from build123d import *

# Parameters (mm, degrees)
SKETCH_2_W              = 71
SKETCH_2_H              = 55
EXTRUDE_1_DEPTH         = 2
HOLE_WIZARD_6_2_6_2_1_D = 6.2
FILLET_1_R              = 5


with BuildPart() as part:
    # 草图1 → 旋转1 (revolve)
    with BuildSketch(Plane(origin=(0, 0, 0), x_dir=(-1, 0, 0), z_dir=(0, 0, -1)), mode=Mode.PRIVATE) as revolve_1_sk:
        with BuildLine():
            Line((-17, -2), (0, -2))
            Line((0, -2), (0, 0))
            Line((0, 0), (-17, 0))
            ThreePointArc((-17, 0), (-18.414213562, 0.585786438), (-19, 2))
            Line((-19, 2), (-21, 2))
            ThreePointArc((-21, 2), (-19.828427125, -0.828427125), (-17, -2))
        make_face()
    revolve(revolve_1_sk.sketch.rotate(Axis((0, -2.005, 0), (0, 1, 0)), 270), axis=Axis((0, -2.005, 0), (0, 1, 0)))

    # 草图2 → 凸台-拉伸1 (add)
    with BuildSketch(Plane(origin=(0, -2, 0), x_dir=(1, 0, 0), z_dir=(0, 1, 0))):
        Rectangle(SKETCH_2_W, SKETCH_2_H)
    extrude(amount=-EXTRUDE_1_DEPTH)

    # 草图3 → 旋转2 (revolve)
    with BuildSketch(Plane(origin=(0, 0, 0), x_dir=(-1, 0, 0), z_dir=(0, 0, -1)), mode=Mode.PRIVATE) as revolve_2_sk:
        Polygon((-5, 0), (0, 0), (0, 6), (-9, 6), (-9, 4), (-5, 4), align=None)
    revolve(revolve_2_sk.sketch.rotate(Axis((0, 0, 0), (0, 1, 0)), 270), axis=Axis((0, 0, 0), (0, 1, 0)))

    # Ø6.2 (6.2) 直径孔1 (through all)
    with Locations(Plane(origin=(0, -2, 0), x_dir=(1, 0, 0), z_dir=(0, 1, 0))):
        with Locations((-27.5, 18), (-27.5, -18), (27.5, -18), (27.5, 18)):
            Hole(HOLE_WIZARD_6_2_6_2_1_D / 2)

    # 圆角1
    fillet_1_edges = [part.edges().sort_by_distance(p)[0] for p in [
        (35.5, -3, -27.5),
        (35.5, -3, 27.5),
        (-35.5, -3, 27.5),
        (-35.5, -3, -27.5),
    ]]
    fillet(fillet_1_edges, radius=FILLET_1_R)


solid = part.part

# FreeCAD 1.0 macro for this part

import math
import FreeCAD as App
import Part
import Sketcher

V = App.Vector


def edges_at(feature, points):
    """Names of the edges that pass closest to the given points."""
    edges = feature.Shape.Edges
    near = lambda p: min(range(len(edges)), key=lambda i: edges[i].distToShape(Part.Vertex(*p))[0])
    return sorted({f"Edge{near(p) + 1}" for p in points})


def add_polygon(sketch, points):
    """Adds a closed chain of lines whose ends are joined by coincident constraints."""
    first, n = sketch.GeometryCount, len(points)
    for a, b in zip(points, points[1:] + points[:1]):
        sketch.addGeometry(Part.LineSegment(App.Vector(*a, 0), App.Vector(*b, 0)), False)
    for i in range(n):
        sketch.addConstraint(Sketcher.Constraint("Coincident", first + i, 2, first + (i + 1) % n, 1))

doc = App.newDocument("Part")
body = doc.addObject("PartDesign::Body", "Body")

sketch1 = doc.addObject("Sketcher::SketchObject", "Sketch")
body.addObject(sketch1)
sketch1.AttachmentSupport = (doc.XY_Plane, [""])
sketch1.MapMode = "FlatFace"
sketch1.addGeometry(Part.LineSegment(V(17, -2, 0), V(0, -2, 0)), False)
sketch1.addGeometry(Part.LineSegment(V(0, -2, 0), V(0, 0, 0)), False)
sketch1.addGeometry(Part.LineSegment(V(0, 0, 0), V(17, 0, 0)), False)
sketch1.addGeometry(Part.ArcOfCircle(Part.Circle(V(17, 2, 0), V(0, 0, 1), 2), math.radians(-90), math.radians(0)), False)
sketch1.addGeometry(Part.LineSegment(V(19, 2, 0), V(21, 2, 0)), False)
sketch1.addGeometry(Part.ArcOfCircle(Part.Circle(V(17, 2, 0), V(0, 0, 1), 4), math.radians(-90), math.radians(0)), False)
sketch1.addConstraint(Sketcher.Constraint("Coincident", 0, 2, 1, 1))
sketch1.addConstraint(Sketcher.Constraint("Coincident", 1, 2, 2, 1))
sketch1.addConstraint(Sketcher.Constraint("Tangent", 2, 2, 3, 1))
sketch1.addConstraint(Sketcher.Constraint("Coincident", 3, 2, 4, 1))
sketch1.addConstraint(Sketcher.Constraint("Coincident", 4, 2, 5, 2))
sketch1.addConstraint(Sketcher.Constraint("Tangent", 5, 1, 0, 1))
sketch1.addConstraint(Sketcher.Constraint("Horizontal", 0))
sketch1.addConstraint(Sketcher.Constraint("Vertical", 1))
sketch1.addConstraint(Sketcher.Constraint("Horizontal", 2))
sketch1.addConstraint(Sketcher.Constraint("Horizontal", 4))
sketch1.addConstraint(Sketcher.Constraint("Coincident", 1, 2, -1, 1))
sketch1.addConstraint(Sketcher.Constraint("Coincident", 5, 3, 3, 3))
sketch1.addConstraint(Sketcher.Constraint("Horizontal", 5, 3, 3, 2))
sketch1.addConstraint(Sketcher.Constraint("Radius", 3, 2.0))
sketch1.addConstraint(Sketcher.Constraint("Radius", 5, 4.0))
sketch1.addConstraint(Sketcher.Constraint("DistanceX", 0, 2, 0, 1, 17.0))
revolution = doc.addObject("PartDesign::Revolution", "Revolution")
body.addObject(revolution)
revolution.Profile = sketch1
revolution.ReferenceAxis = (sketch1, ["V_Axis"])
revolution.Angle = 360

sketch2 = doc.addObject("Sketcher::SketchObject", "Sketch001")
body.addObject(sketch2)
sketch2.AttachmentSupport = (doc.XZ_Plane, [""])
sketch2.MapMode = "FlatFace"
sketch2.AttachmentOffset = App.Placement(V(0, 0, 2), App.Rotation())
add_polygon(sketch2, [(-36, -28), (-36, 28), (36, 28), (36, -28)])
sketch2.addConstraint(Sketcher.Constraint("Vertical", 0))
sketch2.addConstraint(Sketcher.Constraint("Horizontal", 1))
sketch2.addConstraint(Sketcher.Constraint("Vertical", 2))
sketch2.addConstraint(Sketcher.Constraint("Horizontal", 3))
sketch2.addConstraint(Sketcher.Constraint("Symmetric", 0, 2, 2, 2, -1, 1))
sketch2.addConstraint(Sketcher.Constraint("DistanceX", 1, 1, 1, 2, 71.0))
sketch2.addConstraint(Sketcher.Constraint("DistanceY", 0, 1, 0, 2, 55.0))
pad1 = doc.addObject("PartDesign::Pad", "Pad")
body.addObject(pad1)
pad1.Profile = sketch2
pad1.Length = 2

sketch3 = doc.addObject("Sketcher::SketchObject", "Sketch002")
body.addObject(sketch3)
sketch3.AttachmentSupport = (doc.XY_Plane, [""])
sketch3.MapMode = "FlatFace"
add_polygon(sketch3, [(5, 0), (0, 0), (0, 6), (9, 6), (9, 4), (5, 4)])
sketch3.addConstraint(Sketcher.Constraint("Horizontal", 0))
sketch3.addConstraint(Sketcher.Constraint("Vertical", 1))
sketch3.addConstraint(Sketcher.Constraint("Horizontal", 2))
sketch3.addConstraint(Sketcher.Constraint("Vertical", 3))
sketch3.addConstraint(Sketcher.Constraint("Horizontal", 4))
sketch3.addConstraint(Sketcher.Constraint("Vertical", 5))
sketch3.addConstraint(Sketcher.Constraint("Coincident", 0, 2, -1, 1))
sketch3.addConstraint(Sketcher.Constraint("Equal", 4, 5))
sketch3.addConstraint(Sketcher.Constraint("DistanceX", 0, 2, 0, 1, 5.0))
sketch3.addConstraint(Sketcher.Constraint("DistanceX", 2, 1, 2, 2, 9.0))
sketch3.addConstraint(Sketcher.Constraint("DistanceY", 1, 1, 1, 2, 6.0))
revolution2 = doc.addObject("PartDesign::Revolution", "Revolution001")
body.addObject(revolution2)
revolution2.Profile = sketch3
revolution2.ReferenceAxis = (sketch3, ["V_Axis"])
revolution2.Angle = 360

sketch4 = doc.addObject("Sketcher::SketchObject", "Sketch003")
body.addObject(sketch4)
sketch4.AttachmentSupport = (doc.XZ_Plane, [""])
sketch4.MapMode = "FlatFace"
sketch4.AttachmentOffset = App.Placement(V(0, 0, 2), App.Rotation())
sketch4.addGeometry(Part.Circle(V(-27.5, -18, 0), V(0, 0, 1), 3.1), False)
sketch4.addGeometry(Part.Circle(V(-27.5, 18, 0), V(0, 0, 1), 3.1), False)
sketch4.addGeometry(Part.Circle(V(27.5, 18, 0), V(0, 0, 1), 3.1), False)
sketch4.addGeometry(Part.Circle(V(27.5, -18, 0), V(0, 0, 1), 3.1), False)
sketch4.addConstraint(Sketcher.Constraint("Equal", 0, 1))
sketch4.addConstraint(Sketcher.Constraint("Equal", 1, 2))
sketch4.addConstraint(Sketcher.Constraint("Equal", 2, 3))
sketch4.addConstraint(Sketcher.Constraint("Symmetric", 0, 3, 2, 3, -1, 1))
sketch4.addConstraint(Sketcher.Constraint("Symmetric", 1, 3, 3, 3, -1, 1))
sketch4.addConstraint(Sketcher.Constraint("Symmetric", 1, 3, 2, 3, -2))
sketch4.addConstraint(Sketcher.Constraint("Diameter", 0, 6.2))
sketch4.addConstraint(Sketcher.Constraint("DistanceY", 0, 3, -1, 1, 18.0))
sketch4.addConstraint(Sketcher.Constraint("DistanceX", 1, 3, 2, 3, 55.0))
doc.recompute()
hole = doc.addObject("PartDesign::Hole", "Hole")
body.addObject(hole)
hole.Profile = sketch4
hole.ThreadType = "None"
hole.Diameter = 6.2
hole.DepthType = "ThroughAll"
hole.Reversed = True
doc.recompute()

fillet = doc.addObject("PartDesign::Fillet", "Fillet")
body.addObject(fillet)
fillet.Base = (hole, edges_at(hole, [
    (35.5, -3, -27.5),
    (35.5, -3, 27.5),
    (-35.5, -3, 27.5),
    (-35.5, -3, -27.5),
]))
fillet.Radius = 5

doc.recompute()
